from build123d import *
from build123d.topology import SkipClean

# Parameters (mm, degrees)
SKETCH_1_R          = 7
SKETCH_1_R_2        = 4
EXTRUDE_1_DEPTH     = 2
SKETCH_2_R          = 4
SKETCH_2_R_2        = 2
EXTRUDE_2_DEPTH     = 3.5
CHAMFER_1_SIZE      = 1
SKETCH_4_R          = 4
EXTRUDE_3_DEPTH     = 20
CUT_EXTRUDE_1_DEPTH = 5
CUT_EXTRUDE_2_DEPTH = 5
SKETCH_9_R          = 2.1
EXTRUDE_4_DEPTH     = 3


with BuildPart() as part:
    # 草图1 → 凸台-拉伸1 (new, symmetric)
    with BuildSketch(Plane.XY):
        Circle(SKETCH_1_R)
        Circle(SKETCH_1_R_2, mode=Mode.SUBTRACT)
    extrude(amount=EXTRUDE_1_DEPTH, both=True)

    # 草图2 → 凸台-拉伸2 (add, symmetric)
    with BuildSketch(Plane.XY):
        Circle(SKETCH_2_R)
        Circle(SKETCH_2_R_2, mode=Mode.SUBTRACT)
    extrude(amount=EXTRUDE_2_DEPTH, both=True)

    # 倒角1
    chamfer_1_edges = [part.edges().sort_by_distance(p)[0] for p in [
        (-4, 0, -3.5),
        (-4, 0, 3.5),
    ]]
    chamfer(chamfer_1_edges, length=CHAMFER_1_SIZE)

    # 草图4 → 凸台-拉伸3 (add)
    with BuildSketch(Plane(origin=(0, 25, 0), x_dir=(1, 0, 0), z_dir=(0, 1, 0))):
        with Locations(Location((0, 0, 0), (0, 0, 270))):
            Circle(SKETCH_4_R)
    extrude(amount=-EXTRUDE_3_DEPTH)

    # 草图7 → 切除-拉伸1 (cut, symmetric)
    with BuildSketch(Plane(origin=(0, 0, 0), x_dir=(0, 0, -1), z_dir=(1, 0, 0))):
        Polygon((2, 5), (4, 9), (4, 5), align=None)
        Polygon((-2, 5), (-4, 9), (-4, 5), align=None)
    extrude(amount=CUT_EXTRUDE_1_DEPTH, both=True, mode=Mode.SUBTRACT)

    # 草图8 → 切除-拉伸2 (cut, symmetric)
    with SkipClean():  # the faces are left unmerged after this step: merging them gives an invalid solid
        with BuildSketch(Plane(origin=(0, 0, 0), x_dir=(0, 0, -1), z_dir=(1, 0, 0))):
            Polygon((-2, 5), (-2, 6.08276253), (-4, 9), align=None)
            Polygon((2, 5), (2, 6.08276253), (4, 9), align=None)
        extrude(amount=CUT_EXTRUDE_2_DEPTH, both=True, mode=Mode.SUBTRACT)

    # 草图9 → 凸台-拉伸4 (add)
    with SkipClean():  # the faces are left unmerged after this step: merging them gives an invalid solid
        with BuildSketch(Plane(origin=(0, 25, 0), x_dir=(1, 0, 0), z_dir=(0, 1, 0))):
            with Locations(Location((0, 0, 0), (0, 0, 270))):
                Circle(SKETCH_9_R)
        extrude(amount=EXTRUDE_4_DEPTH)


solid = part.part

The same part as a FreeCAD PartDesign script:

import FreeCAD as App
import Part
import Sketcher
from FreeCAD import Vector


def edges_at(feature, points):
    """Names of the edges that pass closest to the given points."""
    edges = feature.Shape.Edges
    near = lambda p: min(range(len(edges)), key=lambda i: edges[i].distToShape(Part.Vertex(*p))[0])
    return sorted({f"Edge{near(p) + 1}" for p in points})


def add_polygon(sketch, points):
    """Adds a closed chain of lines whose ends are joined by coincident constraints."""
    first, n = sketch.GeometryCount, len(points)
    for a, b in zip(points, points[1:] + points[:1]):
        sketch.addGeometry(Part.LineSegment(App.Vector(*a, 0), App.Vector(*b, 0)), False)
    for i in range(n):
        sketch.addConstraint(Sketcher.Constraint("Coincident", first + i, 2, first + (i + 1) % n, 1))

doc = App.newDocument("Part")
body = doc.addObject("PartDesign::Body", "Body")

# Sketch on XY plane
sketch1 = body.newObject("Sketcher::SketchObject", "Sketch")
sketch1.AttachmentSupport = (doc.getObject("XY_Plane"), [""])
sketch1.MapMode = "FlatFace"
sketch1.addGeometry(Part.Circle(Vector(0, 0, 0), Vector(0, 0, 1), 7), False)
sketch1.addGeometry(Part.Circle(Vector(0, 0, 0), Vector(0, 0, 1), 4), False)
sketch1.addConstraint(Sketcher.Constraint("Coincident", 0, 3, -1, 1))
sketch1.addConstraint(Sketcher.Constraint("Coincident", 1, 3, -1, 1))
sketch1.addConstraint(Sketcher.Constraint("Diameter", 0, 14.0))
sketch1.addConstraint(Sketcher.Constraint("Diameter", 1, 8.0))
pad1 = body.newObject("PartDesign::Pad", "Pad")
pad1.Profile = sketch1
pad1.Length = 4
pad1.Midplane = True

# Sketch on XY plane
sketch2 = body.newObject("Sketcher::SketchObject", "Sketch001")
sketch2.AttachmentSupport = (doc.getObject("XY_Plane"), [""])
sketch2.MapMode = "FlatFace"
sketch2.addGeometry(Part.Circle(Vector(0, 0, 0), Vector(0, 0, 1), 4), False)
sketch2.addGeometry(Part.Circle(Vector(0, 0, 0), Vector(0, 0, 1), 2), False)
sketch2.addConstraint(Sketcher.Constraint("Coincident", 0, 3, -1, 1))
sketch2.addConstraint(Sketcher.Constraint("Coincident", 1, 3, -1, 1))
sketch2.addConstraint(Sketcher.Constraint("Diameter", 0, 8.0))
sketch2.addConstraint(Sketcher.Constraint("Diameter", 1, 4.0))
pad2 = body.newObject("PartDesign::Pad", "Pad001")
pad2.Profile = sketch2
pad2.Length = 7
pad2.Midplane = True
doc.recompute()

chamfer = body.newObject("PartDesign::Chamfer", "Chamfer")
chamfer.Base = (pad2, edges_at(pad2, [(-4, 0, -3.5), (-4, 0, 3.5)]))
chamfer.Size = 1

# Sketch on XZ plane
sketch3 = body.newObject("Sketcher::SketchObject", "Sketch002")
sketch3.AttachmentSupport = (doc.getObject("XZ_Plane"), [""])
sketch3.MapMode = "FlatFace"
sketch3.AttachmentOffset = App.Placement(Vector(0, 0, -25), App.Rotation())
sketch3.addGeometry(Part.Circle(Vector(0, 0, 0), Vector(0, 0, 1), 4), False)
sketch3.addConstraint(Sketcher.Constraint("Coincident", 0, 3, -1, 1))
sketch3.addConstraint(Sketcher.Constraint("Diameter", 0, 8.0))
pad3 = body.newObject("PartDesign::Pad", "Pad002")
pad3.Profile = sketch3
pad3.Length = 20

# Sketch on YZ plane
sketch4 = body.newObject("Sketcher::SketchObject", "Sketch003")
sketch4.AttachmentSupport = (doc.getObject("YZ_Plane"), [""])
sketch4.MapMode = "FlatFace"
add_polygon(sketch4, [(9, -4), (5, -2), (5, -4)])  # lines 0-2
add_polygon(sketch4, [(5, 2), (9, 4), (5, 4)])  # lines 3-5
sketch4.addConstraint(Sketcher.Constraint("Vertical", 1))
sketch4.addConstraint(Sketcher.Constraint("Horizontal", 2))
sketch4.addConstraint(Sketcher.Constraint("Horizontal", 4))
sketch4.addConstraint(Sketcher.Constraint("Vertical", 5))
sketch4.addConstraint(Sketcher.Constraint("Symmetric", 2, 2, 3, 2, -1))
sketch4.addConstraint(Sketcher.Constraint("Symmetric", 0, 2, 5, 2, -1))
sketch4.addConstraint(Sketcher.Constraint("DistanceX", 2, 1, 2, 2, 4.0))
sketch4.addConstraint(Sketcher.Constraint("DistanceY", 1, 2, 1, 1, 2.0))
sketch4.addConstraint(Sketcher.Constraint("DistanceX", -1, 1, 0, 2, 5.0))
sketch4.addConstraint(Sketcher.Constraint("DistanceY", 0, 2, -1, 1, 2.0))
pocket1 = body.newObject("PartDesign::Pocket", "Pocket")
pocket1.Profile = sketch4
pocket1.Length = 10
pocket1.Midplane = True

# Sketch on YZ plane
sketch5 = body.newObject("Sketcher::SketchObject", "Sketch004")
sketch5.AttachmentSupport = (doc.getObject("YZ_Plane"), [""])
sketch5.MapMode = "FlatFace"
add_polygon(sketch5, [(5, 2), (6.082763, 2), (9, 4)])  # lines 0-2
add_polygon(sketch5, [(6.082763, -2), (5, -2), (9, -4)])  # lines 3-5
sketch5.addConstraint(Sketcher.Constraint("Horizontal", 0))
sketch5.addConstraint(Sketcher.Constraint("Horizontal", 3))
sketch5.addConstraint(Sketcher.Constraint("Symmetric", 2, 2, 3, 2, -1))
sketch5.addConstraint(Sketcher.Constraint("Symmetric", 1, 2, 4, 2, -1))
sketch5.addConstraint(Sketcher.Constraint("Vertical", 0, 2, 5, 2))
sketch5.addConstraint(Sketcher.Constraint("DistanceY", -1, 1, 0, 2, 2.0))
sketch5.addConstraint(Sketcher.Constraint("DistanceX", -1, 1, 1, 2, 9.0))
sketch5.addConstraint(Sketcher.Constraint("DistanceY", -1, 1, 1, 2, 4.0))
sketch5.addConstraint(Sketcher.Constraint("DistanceX", -1, 1, 2, 2, 5.0))
sketch5.addConstraint(Sketcher.Constraint("DistanceX", 0, 1, 0, 2, 1.082763))
pocket2 = body.newObject("PartDesign::Pocket", "Pocket001")
pocket2.Profile = sketch5
pocket2.Length = 10
pocket2.Midplane = True

# Sketch on XZ plane
sketch6 = body.newObject("Sketcher::SketchObject", "Sketch005")
sketch6.AttachmentSupport = (doc.getObject("XZ_Plane"), [""])
sketch6.MapMode = "FlatFace"
sketch6.AttachmentOffset = App.Placement(Vector(0, 0, -25), App.Rotation())
sketch6.addGeometry(Part.Circle(Vector(0, 0, 0), Vector(0, 0, 1), 2.1), False)
sketch6.addConstraint(Sketcher.Constraint("Coincident", 0, 3, -1, 1))
sketch6.addConstraint(Sketcher.Constraint("Diameter", 0, 4.2))
pad4 = body.newObject("PartDesign::Pad", "Pad003")
pad4.Profile = sketch6
pad4.Length = 3
pad4.Reversed = True

doc.recompute()
